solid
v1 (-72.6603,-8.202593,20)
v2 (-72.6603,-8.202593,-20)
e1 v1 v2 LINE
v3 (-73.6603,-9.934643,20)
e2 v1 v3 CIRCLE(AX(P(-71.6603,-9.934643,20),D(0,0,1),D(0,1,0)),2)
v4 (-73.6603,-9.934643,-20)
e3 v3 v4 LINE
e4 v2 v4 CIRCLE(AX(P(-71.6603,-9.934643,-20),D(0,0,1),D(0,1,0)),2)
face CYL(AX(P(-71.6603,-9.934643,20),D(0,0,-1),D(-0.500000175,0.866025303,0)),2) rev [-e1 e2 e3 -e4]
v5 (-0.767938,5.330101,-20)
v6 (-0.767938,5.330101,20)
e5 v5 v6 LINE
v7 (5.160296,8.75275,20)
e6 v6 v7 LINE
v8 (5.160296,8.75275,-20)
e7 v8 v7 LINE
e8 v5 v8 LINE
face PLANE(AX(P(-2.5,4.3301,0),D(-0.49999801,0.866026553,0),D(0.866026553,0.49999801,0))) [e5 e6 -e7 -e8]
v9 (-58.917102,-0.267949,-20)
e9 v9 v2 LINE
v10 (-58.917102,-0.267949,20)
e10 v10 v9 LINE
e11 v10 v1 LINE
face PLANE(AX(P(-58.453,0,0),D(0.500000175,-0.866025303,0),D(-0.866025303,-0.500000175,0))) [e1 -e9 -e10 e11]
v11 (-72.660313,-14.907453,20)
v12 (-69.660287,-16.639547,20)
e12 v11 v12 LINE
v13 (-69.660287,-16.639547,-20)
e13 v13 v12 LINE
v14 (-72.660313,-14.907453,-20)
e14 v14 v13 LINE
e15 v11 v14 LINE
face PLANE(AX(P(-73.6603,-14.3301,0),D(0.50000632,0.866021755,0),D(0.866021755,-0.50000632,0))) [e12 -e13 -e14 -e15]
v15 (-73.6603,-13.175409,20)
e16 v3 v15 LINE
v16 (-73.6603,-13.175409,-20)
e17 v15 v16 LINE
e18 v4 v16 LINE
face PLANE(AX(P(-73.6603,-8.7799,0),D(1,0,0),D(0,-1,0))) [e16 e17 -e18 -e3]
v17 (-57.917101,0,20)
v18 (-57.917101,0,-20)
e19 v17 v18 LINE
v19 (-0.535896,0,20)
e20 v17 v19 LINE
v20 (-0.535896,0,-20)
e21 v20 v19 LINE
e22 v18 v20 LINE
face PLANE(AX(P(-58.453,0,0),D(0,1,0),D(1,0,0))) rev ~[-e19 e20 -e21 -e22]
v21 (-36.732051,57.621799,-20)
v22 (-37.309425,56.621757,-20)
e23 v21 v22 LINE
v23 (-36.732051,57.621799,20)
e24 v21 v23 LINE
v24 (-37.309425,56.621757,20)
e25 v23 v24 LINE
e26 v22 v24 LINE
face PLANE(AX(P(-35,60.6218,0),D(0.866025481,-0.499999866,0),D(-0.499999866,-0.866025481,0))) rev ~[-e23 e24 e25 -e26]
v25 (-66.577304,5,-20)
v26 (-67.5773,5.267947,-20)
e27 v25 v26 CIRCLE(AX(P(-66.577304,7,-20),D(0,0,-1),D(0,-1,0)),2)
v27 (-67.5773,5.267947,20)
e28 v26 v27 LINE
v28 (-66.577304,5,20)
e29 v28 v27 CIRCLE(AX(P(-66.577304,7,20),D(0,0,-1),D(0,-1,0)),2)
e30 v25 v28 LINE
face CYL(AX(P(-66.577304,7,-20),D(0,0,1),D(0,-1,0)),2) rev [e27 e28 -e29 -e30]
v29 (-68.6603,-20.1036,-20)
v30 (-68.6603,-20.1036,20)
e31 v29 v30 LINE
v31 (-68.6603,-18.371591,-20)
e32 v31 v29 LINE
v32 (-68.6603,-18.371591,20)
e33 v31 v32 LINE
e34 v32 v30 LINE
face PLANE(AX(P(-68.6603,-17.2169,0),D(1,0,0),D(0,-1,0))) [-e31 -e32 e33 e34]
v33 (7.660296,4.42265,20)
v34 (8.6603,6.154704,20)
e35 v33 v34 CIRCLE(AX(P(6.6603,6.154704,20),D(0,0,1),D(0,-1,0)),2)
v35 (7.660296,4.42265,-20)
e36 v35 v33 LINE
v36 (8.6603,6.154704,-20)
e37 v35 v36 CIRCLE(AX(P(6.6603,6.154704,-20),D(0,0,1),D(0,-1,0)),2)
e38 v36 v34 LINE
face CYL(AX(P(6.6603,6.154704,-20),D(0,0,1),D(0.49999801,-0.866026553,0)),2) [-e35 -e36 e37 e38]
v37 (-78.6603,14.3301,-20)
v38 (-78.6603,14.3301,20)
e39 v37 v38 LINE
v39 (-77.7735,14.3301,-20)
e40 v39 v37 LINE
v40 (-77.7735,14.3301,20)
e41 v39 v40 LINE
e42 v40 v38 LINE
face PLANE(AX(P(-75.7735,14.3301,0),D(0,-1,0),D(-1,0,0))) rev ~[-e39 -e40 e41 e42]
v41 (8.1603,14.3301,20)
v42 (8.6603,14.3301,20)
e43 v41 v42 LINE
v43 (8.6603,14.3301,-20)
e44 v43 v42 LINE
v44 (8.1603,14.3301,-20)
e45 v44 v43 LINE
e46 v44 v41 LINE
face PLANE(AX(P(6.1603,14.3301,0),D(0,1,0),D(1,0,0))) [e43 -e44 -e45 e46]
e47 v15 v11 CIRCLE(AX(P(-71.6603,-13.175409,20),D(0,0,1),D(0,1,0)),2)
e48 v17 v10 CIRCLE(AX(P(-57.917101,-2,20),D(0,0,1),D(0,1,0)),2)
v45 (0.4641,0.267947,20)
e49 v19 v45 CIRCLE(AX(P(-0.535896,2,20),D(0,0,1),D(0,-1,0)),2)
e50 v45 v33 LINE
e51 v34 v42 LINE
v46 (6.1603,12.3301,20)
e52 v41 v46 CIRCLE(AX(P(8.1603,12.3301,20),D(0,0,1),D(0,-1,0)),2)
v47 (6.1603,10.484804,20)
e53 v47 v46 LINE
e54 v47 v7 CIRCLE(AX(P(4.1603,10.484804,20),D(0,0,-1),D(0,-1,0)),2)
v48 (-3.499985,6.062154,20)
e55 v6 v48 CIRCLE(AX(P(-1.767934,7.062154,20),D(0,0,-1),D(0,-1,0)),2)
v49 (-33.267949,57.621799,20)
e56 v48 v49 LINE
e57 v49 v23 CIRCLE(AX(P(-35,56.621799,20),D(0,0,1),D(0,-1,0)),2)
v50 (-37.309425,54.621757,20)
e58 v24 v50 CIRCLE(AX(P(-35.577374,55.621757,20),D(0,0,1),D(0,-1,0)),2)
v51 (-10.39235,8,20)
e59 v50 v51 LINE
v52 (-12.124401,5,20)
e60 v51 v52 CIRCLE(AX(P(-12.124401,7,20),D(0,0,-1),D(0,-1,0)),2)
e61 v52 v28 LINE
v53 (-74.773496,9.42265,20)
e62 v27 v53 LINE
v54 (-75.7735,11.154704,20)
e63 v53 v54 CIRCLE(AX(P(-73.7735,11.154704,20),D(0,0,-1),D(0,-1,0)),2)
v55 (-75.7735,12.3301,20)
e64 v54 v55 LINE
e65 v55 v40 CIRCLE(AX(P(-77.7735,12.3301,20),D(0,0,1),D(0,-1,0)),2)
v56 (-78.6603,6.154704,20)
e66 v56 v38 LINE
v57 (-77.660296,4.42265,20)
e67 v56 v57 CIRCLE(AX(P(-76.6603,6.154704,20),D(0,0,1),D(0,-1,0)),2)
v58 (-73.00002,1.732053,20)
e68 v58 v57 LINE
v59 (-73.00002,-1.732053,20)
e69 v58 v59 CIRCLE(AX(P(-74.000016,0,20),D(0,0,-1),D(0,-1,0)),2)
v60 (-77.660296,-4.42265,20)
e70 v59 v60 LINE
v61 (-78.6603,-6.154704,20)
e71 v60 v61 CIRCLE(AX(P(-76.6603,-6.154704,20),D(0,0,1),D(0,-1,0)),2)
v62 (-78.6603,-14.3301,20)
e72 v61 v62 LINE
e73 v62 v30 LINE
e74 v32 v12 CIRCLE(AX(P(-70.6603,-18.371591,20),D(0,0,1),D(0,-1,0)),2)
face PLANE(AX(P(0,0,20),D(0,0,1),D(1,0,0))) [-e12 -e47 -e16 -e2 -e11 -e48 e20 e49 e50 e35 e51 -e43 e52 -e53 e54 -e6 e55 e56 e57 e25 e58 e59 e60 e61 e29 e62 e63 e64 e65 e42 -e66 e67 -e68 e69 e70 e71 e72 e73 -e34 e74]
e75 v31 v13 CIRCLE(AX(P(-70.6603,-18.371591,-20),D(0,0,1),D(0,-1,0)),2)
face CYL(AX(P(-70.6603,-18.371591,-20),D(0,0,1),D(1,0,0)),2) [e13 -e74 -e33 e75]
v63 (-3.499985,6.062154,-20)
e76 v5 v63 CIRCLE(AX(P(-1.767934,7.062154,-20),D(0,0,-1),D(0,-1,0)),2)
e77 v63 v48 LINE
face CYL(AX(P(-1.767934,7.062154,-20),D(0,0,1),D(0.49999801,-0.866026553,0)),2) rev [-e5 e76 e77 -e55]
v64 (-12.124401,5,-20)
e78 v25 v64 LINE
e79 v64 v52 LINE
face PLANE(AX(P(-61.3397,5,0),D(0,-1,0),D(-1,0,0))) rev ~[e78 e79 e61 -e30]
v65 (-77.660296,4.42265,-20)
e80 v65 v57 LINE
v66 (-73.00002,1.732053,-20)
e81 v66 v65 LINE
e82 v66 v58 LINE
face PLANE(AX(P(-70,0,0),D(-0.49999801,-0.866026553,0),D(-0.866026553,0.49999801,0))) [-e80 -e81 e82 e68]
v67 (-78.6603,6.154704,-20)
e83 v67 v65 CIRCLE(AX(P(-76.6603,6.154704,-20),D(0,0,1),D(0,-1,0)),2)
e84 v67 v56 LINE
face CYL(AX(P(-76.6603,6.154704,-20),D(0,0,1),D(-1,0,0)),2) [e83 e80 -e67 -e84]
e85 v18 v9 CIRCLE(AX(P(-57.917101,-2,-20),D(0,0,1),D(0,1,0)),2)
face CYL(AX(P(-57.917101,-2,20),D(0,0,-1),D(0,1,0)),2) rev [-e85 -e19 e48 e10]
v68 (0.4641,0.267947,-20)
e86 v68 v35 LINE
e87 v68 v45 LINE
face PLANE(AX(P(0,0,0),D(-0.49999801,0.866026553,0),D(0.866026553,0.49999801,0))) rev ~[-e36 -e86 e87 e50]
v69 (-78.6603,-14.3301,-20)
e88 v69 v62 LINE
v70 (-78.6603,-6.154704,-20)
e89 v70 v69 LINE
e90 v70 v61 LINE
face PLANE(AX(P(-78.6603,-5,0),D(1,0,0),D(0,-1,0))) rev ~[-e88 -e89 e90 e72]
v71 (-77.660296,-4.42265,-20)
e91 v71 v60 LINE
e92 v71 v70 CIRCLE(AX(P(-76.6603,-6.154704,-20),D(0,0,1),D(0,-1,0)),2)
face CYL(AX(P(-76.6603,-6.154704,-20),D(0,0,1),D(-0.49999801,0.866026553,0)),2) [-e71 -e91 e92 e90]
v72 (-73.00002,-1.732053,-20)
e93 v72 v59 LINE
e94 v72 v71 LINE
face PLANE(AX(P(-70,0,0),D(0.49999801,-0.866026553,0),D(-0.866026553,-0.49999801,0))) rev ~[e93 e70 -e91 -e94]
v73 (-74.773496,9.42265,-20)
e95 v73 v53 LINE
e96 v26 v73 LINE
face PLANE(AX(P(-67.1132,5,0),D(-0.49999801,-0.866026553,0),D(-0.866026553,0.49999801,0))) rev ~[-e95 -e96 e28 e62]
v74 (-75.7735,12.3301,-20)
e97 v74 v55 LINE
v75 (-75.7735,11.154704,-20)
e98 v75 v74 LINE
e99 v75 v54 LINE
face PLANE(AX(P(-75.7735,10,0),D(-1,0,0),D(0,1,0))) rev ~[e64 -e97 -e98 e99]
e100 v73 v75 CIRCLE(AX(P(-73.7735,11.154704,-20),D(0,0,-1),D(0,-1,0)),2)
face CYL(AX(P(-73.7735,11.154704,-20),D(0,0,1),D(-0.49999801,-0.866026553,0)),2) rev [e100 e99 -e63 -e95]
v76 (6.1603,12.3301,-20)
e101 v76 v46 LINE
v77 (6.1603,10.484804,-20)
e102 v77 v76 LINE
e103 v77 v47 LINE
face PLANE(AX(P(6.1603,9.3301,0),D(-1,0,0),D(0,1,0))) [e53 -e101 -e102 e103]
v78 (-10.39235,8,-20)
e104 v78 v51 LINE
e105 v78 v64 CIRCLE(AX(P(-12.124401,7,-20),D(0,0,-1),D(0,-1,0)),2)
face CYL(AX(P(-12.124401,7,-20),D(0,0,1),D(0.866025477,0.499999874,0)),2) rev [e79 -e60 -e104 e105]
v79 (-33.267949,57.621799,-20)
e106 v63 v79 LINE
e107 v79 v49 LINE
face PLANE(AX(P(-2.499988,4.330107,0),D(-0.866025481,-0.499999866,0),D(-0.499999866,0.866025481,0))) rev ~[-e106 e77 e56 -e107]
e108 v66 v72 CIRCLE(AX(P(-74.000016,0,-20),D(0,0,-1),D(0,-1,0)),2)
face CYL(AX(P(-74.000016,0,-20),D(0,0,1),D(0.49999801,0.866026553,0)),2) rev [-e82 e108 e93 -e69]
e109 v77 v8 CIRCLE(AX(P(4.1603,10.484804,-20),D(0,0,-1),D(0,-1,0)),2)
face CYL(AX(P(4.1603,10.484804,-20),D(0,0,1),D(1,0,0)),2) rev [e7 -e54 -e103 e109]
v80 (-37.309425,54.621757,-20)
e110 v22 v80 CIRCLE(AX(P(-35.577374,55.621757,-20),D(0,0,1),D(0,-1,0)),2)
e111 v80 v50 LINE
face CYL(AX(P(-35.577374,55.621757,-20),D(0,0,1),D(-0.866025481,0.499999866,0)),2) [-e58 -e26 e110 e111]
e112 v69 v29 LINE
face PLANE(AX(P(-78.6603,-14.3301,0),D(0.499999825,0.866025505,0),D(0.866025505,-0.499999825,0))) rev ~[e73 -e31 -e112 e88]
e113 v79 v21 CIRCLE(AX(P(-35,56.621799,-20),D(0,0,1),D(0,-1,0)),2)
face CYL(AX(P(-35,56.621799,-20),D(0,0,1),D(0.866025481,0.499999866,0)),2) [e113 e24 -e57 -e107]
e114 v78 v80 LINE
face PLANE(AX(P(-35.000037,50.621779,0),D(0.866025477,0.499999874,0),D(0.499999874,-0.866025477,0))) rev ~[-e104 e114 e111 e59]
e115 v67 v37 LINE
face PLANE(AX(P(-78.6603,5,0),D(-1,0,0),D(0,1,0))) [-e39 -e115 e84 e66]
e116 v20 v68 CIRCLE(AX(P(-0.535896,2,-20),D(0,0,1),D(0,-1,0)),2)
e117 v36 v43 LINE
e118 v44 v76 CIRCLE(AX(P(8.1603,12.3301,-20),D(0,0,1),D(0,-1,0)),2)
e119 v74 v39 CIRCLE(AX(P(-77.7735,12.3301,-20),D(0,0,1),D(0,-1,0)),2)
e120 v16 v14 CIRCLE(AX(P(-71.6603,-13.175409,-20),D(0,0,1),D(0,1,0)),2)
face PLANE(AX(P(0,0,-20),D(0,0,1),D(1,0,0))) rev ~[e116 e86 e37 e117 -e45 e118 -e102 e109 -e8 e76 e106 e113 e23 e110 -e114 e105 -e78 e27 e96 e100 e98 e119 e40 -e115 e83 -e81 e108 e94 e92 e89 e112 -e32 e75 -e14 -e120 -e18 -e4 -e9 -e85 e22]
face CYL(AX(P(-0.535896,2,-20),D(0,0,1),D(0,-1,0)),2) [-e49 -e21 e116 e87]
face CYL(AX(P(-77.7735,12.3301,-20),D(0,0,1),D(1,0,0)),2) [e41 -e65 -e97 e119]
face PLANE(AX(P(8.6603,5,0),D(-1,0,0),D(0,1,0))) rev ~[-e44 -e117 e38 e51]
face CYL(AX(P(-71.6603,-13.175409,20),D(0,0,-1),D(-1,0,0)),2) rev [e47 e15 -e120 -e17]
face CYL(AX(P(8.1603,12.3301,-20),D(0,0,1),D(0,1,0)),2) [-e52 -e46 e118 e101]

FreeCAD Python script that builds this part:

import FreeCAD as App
import Part
import Sketcher
from FreeCAD import Vector
Q = App.Units.Quantity


def edges_at(feature, points):
    """Names of the edges that pass closest to the given points."""
    edges = feature.Shape.Edges
    near = lambda p: min(range(len(edges)), key=lambda i: edges[i].distToShape(Part.Vertex(*p))[0])
    return sorted({f"Edge{near(p) + 1}" for p in points})


def add_polygon(sketch, points):
    """Adds a closed chain of lines whose ends are joined by coincident constraints."""
    first, n = sketch.GeometryCount, len(points)
    for a, b in zip(points, points[1:] + points[:1]):
        sketch.addGeometry(Part.LineSegment(App.Vector(*a, 0), App.Vector(*b, 0)), False)
    for i in range(n):
        sketch.addConstraint(Sketcher.Constraint("Coincident", first + i, 2, first + (i + 1) % n, 1))

doc = App.newDocument("Part")
body = doc.addObject("PartDesign::Body", "Body")

# Sketch on XY plane
sketch1 = body.newObject("Sketcher::SketchObject", "Sketch")
sketch1.AttachmentSupport = (doc.getObject("XY_Plane"), [""])
sketch1.MapMode = "FlatFace"
add_polygon(sketch1, [(-58.453, 0), (0, 0), (8.6603, 5), (8.6603, 14.3301), (6.1603, 14.3301), (6.1603, 9.3301), (-2.499988, 4.330107), (-35, 60.6218), (-37.8868, 55.6218), (-8.6603, 5), (-67.1132, 5), (-75.7735, 10), (-75.7735, 14.3301), (-78.6603, 14.3301), (-78.6603, 5), (-70, 0), (-78.6603, -5), (-78.6603, -14.3301), (-68.6603, -20.1036), (-68.6603, -17.2169), (-73.6603, -14.3301), (-73.660281, -8.779932)])  # lines 0-21
sketch1.addConstraint(Sketcher.Constraint("Horizontal", 0))
sketch1.addConstraint(Sketcher.Constraint("Vertical", 2))
sketch1.addConstraint(Sketcher.Constraint("Horizontal", 3))
sketch1.addConstraint(Sketcher.Constraint("Vertical", 4))
sketch1.addConstraint(Sketcher.Constraint("Horizontal", 9))
sketch1.addConstraint(Sketcher.Constraint("Vertical", 11))
sketch1.addConstraint(Sketcher.Constraint("Horizontal", 12))
sketch1.addConstraint(Sketcher.Constraint("Vertical", 13))
sketch1.addConstraint(Sketcher.Constraint("Vertical", 16))
sketch1.addConstraint(Sketcher.Constraint("Vertical", 18))
sketch1.addConstraint(Sketcher.Constraint("Vertical", 20))
sketch1.addConstraint(Sketcher.Constraint("Coincident", 0, 2, -1, 1))
sketch1.addConstraint(Sketcher.Constraint("Symmetric", 1, 2, 8, 2, -2))
sketch1.addConstraint(Sketcher.Constraint("Symmetric", 13, 2, 15, 2, -1))
sketch1.addConstraint(Sketcher.Constraint("PointOnObject", 14, 2, -1))
sketch1.addConstraint(Sketcher.Constraint("Parallel", 1, 5))
sketch1.addConstraint(Sketcher.Constraint("Perpendicular", 5, 6))
sketch1.addConstraint(Sketcher.Constraint("Parallel", 6, 8))
sketch1.addConstraint(Sketcher.Constraint("Perpendicular", 7, 10))
sketch1.addConstraint(Sketcher.Constraint("Parallel", 10, 14))
sketch1.addConstraint(Sketcher.Constraint("Perpendicular", 8, 15))
sketch1.addConstraint(Sketcher.Constraint("Parallel", 14, 17))
sketch1.addConstraint(Sketcher.Constraint("Parallel", 17, 19))
sketch1.addConstraint(Sketcher.Constraint("Parallel", 15, 21))
sketch1.addConstraint(Sketcher.Constraint("Horizontal", 3, 2, 11, 2))
sketch1.addConstraint(Sketcher.Constraint("Horizontal", 9, 2, 13, 2))
sketch1.addConstraint(Sketcher.Constraint("Horizontal", 16, 2, 19, 2))
sketch1.addConstraint(Sketcher.Constraint("Equal", 0, 9))
sketch1.addConstraint(Sketcher.Constraint("Equal", 13, 16))
sketch1.addConstraint(Sketcher.Constraint("Equal", 12, 18))
sketch1.addConstraint(Sketcher.Constraint("Equal", 1, 5))
sketch1.addConstraint(Sketcher.Constraint("Equal", 5, 10))
sketch1.addConstraint(Sketcher.Constraint("Equal", 7, 19))
sketch1.addConstraint(Sketcher.Constraint("DistanceY", 4, 2, 4, 1, Q("5 mm")))
sketch1.addConstraint(Sketcher.Constraint("Angle", 6, Q("120 deg")))
sketch1.addConstraint(Sketcher.Constraint("Distance", 1, Q("10 mm")))
sketch1.addConstraint(Sketcher.Constraint("DistanceX", 14, 2, -1, 1, Q("70 mm")))
sketch1.addConstraint(Sketcher.Constraint("DistanceY", 7, 2, 6, 2, Q("5 mm")))
sketch1.addConstraint(Sketcher.Constraint("DistanceX", 16, 2, 17, 2, Q("10 mm")))
sketch1.addConstraint(Sketcher.Constraint("Distance", 6, Q("65 mm")))
sketch1.addConstraint(Sketcher.Constraint("DistanceX", 3, 2, 3, 1, Q("2.5 mm")))
pad1 = body.newObject("PartDesign::Pad", "Pad")
pad1.Profile = sketch1
pad1.Length = 40
pad1.Midplane = True
doc.recompute()

fillet = body.newObject("PartDesign::Fillet", "Fillet")
fillet.Base = (pad1, edges_at(pad1, [
    (-75.773, 10, 0),
    (-67.113, 5, 0),
    (-2.5, 4.33, 0),
    (-8.66, 5, 0),
    (6.16, 9.33, 0),
    (-37.887, 55.622, 0),
    (-35, 60.622, 0),
    (-75.773, 14.33, 0),
    (6.16, 14.33, 0),
    (-78.66, 5, 0),
    (-70, 0, 0),
    (0, 0, 0),
    (8.66, 5, 0),
    (-78.66, -5, 0),
    (-58.453, 0, 0),
    (-73.66, -8.78, 0),
    (-73.66, -14.33, 0),
    (-68.66, -17.217, 0),
]))
fillet.Radius = 2

doc.recompute()
